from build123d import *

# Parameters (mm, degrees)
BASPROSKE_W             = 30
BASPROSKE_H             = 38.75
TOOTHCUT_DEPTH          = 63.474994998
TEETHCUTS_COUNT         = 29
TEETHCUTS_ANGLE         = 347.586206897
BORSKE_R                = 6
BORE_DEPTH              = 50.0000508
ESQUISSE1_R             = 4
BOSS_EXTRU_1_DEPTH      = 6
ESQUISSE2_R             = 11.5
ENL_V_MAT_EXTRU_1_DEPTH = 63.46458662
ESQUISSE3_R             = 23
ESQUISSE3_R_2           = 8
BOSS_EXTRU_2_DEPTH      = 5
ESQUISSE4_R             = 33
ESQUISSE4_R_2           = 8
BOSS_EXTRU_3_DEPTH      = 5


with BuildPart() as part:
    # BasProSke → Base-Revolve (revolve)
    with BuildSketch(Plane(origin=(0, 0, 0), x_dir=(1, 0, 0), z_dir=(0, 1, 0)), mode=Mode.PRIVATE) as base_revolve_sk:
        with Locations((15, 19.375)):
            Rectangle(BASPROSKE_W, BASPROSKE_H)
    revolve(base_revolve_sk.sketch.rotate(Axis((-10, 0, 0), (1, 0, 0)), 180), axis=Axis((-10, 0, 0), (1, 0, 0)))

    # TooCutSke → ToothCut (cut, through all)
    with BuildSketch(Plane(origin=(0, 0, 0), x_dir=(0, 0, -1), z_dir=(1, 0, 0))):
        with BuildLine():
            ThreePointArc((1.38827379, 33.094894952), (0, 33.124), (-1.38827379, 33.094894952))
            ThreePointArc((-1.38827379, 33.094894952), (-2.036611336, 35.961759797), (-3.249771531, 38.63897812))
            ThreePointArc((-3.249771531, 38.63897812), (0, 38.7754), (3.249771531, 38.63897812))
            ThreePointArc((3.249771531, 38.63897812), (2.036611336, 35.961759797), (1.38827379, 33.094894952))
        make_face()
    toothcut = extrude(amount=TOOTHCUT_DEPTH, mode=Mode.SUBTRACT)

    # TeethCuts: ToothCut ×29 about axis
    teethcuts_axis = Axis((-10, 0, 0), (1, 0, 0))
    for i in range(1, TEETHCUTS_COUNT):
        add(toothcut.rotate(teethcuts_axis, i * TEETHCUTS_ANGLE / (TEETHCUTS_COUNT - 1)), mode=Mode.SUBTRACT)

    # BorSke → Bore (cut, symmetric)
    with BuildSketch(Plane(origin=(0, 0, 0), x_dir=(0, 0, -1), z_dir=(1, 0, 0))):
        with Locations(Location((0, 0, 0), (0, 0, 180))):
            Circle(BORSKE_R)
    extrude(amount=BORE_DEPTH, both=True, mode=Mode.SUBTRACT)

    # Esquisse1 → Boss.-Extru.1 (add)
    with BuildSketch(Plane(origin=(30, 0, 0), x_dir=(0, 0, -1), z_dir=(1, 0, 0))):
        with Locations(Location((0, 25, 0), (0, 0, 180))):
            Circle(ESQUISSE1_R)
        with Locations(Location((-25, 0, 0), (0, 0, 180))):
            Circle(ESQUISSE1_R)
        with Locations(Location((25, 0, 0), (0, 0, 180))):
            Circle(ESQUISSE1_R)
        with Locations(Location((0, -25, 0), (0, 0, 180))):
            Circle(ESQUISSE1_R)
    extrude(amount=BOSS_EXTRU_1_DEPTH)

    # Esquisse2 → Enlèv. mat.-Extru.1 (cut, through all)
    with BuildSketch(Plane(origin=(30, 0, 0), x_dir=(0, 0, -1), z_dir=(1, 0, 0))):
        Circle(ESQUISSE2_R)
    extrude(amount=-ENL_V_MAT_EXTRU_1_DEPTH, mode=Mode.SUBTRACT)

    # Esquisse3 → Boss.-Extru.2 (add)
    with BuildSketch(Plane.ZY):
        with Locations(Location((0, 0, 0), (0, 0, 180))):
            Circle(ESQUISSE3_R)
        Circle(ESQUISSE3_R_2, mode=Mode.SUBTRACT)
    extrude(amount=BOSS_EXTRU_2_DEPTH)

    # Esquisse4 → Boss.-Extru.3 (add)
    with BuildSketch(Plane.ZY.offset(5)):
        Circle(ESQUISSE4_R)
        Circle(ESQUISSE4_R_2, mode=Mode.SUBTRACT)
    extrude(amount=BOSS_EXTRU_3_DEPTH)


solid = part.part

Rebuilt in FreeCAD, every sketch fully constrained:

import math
import FreeCAD as App
import Part
import Sketcher


def add_polygon(sketch, points):
    """Adds a closed chain of lines whose ends are joined by coincident constraints."""
    first, n = sketch.GeometryCount, len(points)
    for a, b in zip(points, points[1:] + points[:1]):
        sketch.addGeometry(Part.LineSegment(App.Vector(*a, 0), App.Vector(*b, 0)), False)
    for i in range(n):
        sketch.addConstraint(Sketcher.Constraint("Coincident", first + i, 2, first + (i + 1) % n, 1))

doc = App.newDocument("Part")
body = doc.addObject("PartDesign::Body", "Body")

# Sketch on XZ plane
sketch1 = body.newObject("Sketcher::SketchObject", "Sketch")
sketch1.AttachmentSupport = (doc.getObject("XZ_Plane"), [""])
sketch1.MapMode = "FlatFace"
add_polygon(sketch1, [(0, -39), (0, 0), (30, 0), (30, -39)])  # lines 0-3
sketch1.addConstraint([
    Sketcher.Constraint("Vertical", 0),
    Sketcher.Constraint("Horizontal", 1),
    Sketcher.Constraint("Vertical", 2),
    Sketcher.Constraint("Horizontal", 3),
    Sketcher.Constraint("Coincident", 0, 2, -1, 1),
    Sketcher.Constraint("DistanceX", 1, 1, 1, 2, 30.0),
    Sketcher.Constraint("DistanceY", 0, 1, 0, 2, 38.75),
])
revolution = body.newObject("PartDesign::Revolution", "Revolution")
revolution.Profile = sketch1
revolution.ReferenceAxis = (sketch1, ["H_Axis"])
revolution.Angle = 360

# Sketch on YZ plane
sketch2 = body.newObject("Sketcher::SketchObject", "Sketch001")
sketch2.AttachmentSupport = (doc.getObject("YZ_Plane"), [""])
sketch2.MapMode = "FlatFace"
sketch2.addGeometry([
    Part.ArcOfCircle(Part.Circle(App.Vector(0, 0, 0), App.Vector(0, 0, 1), 33.1), math.radians(-2.4), math.radians(2.4)),
    Part.ArcOfCircle(Part.Circle(App.Vector(31.3, -15.8, 0), App.Vector(0, 0, 1), 14.5), math.radians(60), math.radians(83)),
    Part.ArcOfCircle(Part.Circle(App.Vector(0, 0, 0), App.Vector(0, 0, 1), 38.8), math.radians(-4.81), math.radians(4.81)),
    Part.ArcOfCircle(Part.Circle(App.Vector(31.3, 15.8, 0), App.Vector(0, 0, 1), 14.5), math.radians(-83), math.radians(-60)),
], False)
sketch2.addConstraint([
    Sketcher.Constraint("Coincident", 0, 1, 1, 2),
    Sketcher.Constraint("Coincident", 1, 1, 2, 1),
    Sketcher.Constraint("Coincident", 2, 2, 3, 2),
    Sketcher.Constraint("Coincident", 3, 1, 0, 2),
    Sketcher.Constraint("Coincident", 0, 3, -1, 1),
    Sketcher.Constraint("Coincident", 2, 3, -1, 1),
    Sketcher.Constraint("Equal", 1, 3),
    Sketcher.Constraint("Symmetric", 1, 3, 3, 3, -1),
    Sketcher.Constraint("Radius", 1, 14.5),
    Sketcher.Constraint("Radius", 0, 33.124),
    Sketcher.Constraint("Radius", 2, 38.7754),
    Sketcher.Constraint("DistanceX", -1, 1, 1, 3, 31.346411),
    Sketcher.Constraint("DistanceX", -1, 1, 1, 1, 38.638978),
])
pocket1 = body.newObject("PartDesign::Pocket", "Pocket")
pocket1.Profile = sketch2
pocket1.Type = "ThroughAll"
pocket1.Reversed = True
doc.recompute()

polarpattern = body.newObject("PartDesign::PolarPattern", "PolarPattern")
polarpattern.Originals = [pocket1]
polarpattern.Axis = (doc.getObject("X_Axis"), [""])
polarpattern.Angle = 360
polarpattern.Occurrences = 29
body.Tip = polarpattern

# Sketch on YZ plane
sketch3 = body.newObject("Sketcher::SketchObject", "Sketch002")
sketch3.AttachmentSupport = (doc.getObject("YZ_Plane"), [""])
sketch3.MapMode = "FlatFace"
sketch3.addGeometry(Part.Circle(App.Vector(0, 0, 0), App.Vector(0, 0, 1), 6), False)
sketch3.addConstraint([
    Sketcher.Constraint("Coincident", 0, 3, -1, 1),
    Sketcher.Constraint("Diameter", 0, 12.0),
])
pocket2 = body.newObject("PartDesign::Pocket", "Pocket001")
pocket2.Profile = sketch3
pocket2.Length = 100.000102
pocket2.Midplane = True

# Sketch on YZ plane
sketch4 = body.newObject("Sketcher::SketchObject", "Sketch003")
sketch4.AttachmentSupport = (doc.getObject("YZ_Plane"), [""])
sketch4.MapMode = "FlatFace"
sketch4.AttachmentOffset = App.Placement(App.Vector(0, 0, 30), App.Rotation())
sketch4.addGeometry([
    Part.Circle(App.Vector(25, 0, 0), App.Vector(0, 0, 1), 4),
    Part.Circle(App.Vector(0, 25, 0), App.Vector(0, 0, 1), 4),
    Part.Circle(App.Vector(0, -25, 0), App.Vector(0, 0, 1), 4),
    Part.Circle(App.Vector(-25, 0, 0), App.Vector(0, 0, 1), 4),
], False)
sketch4.addConstraint([
    Sketcher.Constraint("Equal", 0, 1),
    Sketcher.Constraint("Equal", 1, 2),
    Sketcher.Constraint("Equal", 2, 3),
    Sketcher.Constraint("Symmetric", 1, 3, 2, 3, -1, 1),
    Sketcher.Constraint("Symmetric", 0, 3, 3, 3, -1, 1),
    Sketcher.Constraint("PointOnObject", 0, 3, -1),
    Sketcher.Constraint("PointOnObject", 1, 3, -2),
    Sketcher.Constraint("Diameter", 0, 8.0),
    Sketcher.Constraint("DistanceX", -1, 1, 0, 3, 25.0),
    Sketcher.Constraint("DistanceY", -1, 1, 1, 3, 25.0),
])
pad1 = body.newObject("PartDesign::Pad", "Pad")
pad1.Profile = sketch4
pad1.Length = 6

# Sketch on YZ plane
sketch5 = body.newObject("Sketcher::SketchObject", "Sketch004")
sketch5.AttachmentSupport = (doc.getObject("YZ_Plane"), [""])
sketch5.MapMode = "FlatFace"
sketch5.AttachmentOffset = App.Placement(App.Vector(0, 0, 30), App.Rotation())
sketch5.addGeometry(Part.Circle(App.Vector(0, 0, 0), App.Vector(0, 0, 1), 12), False)
sketch5.addConstraint([
    Sketcher.Constraint("Coincident", 0, 3, -1, 1),
    Sketcher.Constraint("Diameter", 0, 23.0),
])
pocket3 = body.newObject("PartDesign::Pocket", "Pocket002")
pocket3.Profile = sketch5
pocket3.Type = "ThroughAll"

# Sketch on YZ plane
sketch6 = body.newObject("Sketcher::SketchObject", "Sketch005")
sketch6.AttachmentSupport = (doc.getObject("YZ_Plane"), [""])
sketch6.MapMode = "FlatFace"
sketch6.addGeometry([
    Part.Circle(App.Vector(0, 0, 0), App.Vector(0, 0, 1), 23),
    Part.Circle(App.Vector(0, 0, 0), App.Vector(0, 0, 1), 8),
], False)
sketch6.addConstraint([
    Sketcher.Constraint("Coincident", 0, 3, -1, 1),
    Sketcher.Constraint("Coincident", 1, 3, -1, 1),
    Sketcher.Constraint("Diameter", 0, 46.0),
    Sketcher.Constraint("Diameter", 1, 16.0),
])
pad2 = body.newObject("PartDesign::Pad", "Pad001")
pad2.Profile = sketch6
pad2.Length = 5
pad2.Reversed = True

# Sketch on YZ plane
sketch7 = body.newObject("Sketcher::SketchObject", "Sketch006")
sketch7.AttachmentSupport = (doc.getObject("YZ_Plane"), [""])
sketch7.MapMode = "FlatFace"
sketch7.AttachmentOffset = App.Placement(App.Vector(0, 0, -5), App.Rotation())
sketch7.addGeometry([
    Part.Circle(App.Vector(0, 0, 0), App.Vector(0, 0, 1), 33),
    Part.Circle(App.Vector(0, 0, 0), App.Vector(0, 0, 1), 8),
], False)
sketch7.addConstraint([
    Sketcher.Constraint("Coincident", 0, 3, -1, 1),
    Sketcher.Constraint("Coincident", 1, 3, -1, 1),
    Sketcher.Constraint("Diameter", 0, 66.0),
    Sketcher.Constraint("Diameter", 1, 16.0),
])
pad3 = body.newObject("PartDesign::Pad", "Pad002")
pad3.Profile = sketch7
pad3.Length = 5
pad3.Reversed = True

doc.recompute()
